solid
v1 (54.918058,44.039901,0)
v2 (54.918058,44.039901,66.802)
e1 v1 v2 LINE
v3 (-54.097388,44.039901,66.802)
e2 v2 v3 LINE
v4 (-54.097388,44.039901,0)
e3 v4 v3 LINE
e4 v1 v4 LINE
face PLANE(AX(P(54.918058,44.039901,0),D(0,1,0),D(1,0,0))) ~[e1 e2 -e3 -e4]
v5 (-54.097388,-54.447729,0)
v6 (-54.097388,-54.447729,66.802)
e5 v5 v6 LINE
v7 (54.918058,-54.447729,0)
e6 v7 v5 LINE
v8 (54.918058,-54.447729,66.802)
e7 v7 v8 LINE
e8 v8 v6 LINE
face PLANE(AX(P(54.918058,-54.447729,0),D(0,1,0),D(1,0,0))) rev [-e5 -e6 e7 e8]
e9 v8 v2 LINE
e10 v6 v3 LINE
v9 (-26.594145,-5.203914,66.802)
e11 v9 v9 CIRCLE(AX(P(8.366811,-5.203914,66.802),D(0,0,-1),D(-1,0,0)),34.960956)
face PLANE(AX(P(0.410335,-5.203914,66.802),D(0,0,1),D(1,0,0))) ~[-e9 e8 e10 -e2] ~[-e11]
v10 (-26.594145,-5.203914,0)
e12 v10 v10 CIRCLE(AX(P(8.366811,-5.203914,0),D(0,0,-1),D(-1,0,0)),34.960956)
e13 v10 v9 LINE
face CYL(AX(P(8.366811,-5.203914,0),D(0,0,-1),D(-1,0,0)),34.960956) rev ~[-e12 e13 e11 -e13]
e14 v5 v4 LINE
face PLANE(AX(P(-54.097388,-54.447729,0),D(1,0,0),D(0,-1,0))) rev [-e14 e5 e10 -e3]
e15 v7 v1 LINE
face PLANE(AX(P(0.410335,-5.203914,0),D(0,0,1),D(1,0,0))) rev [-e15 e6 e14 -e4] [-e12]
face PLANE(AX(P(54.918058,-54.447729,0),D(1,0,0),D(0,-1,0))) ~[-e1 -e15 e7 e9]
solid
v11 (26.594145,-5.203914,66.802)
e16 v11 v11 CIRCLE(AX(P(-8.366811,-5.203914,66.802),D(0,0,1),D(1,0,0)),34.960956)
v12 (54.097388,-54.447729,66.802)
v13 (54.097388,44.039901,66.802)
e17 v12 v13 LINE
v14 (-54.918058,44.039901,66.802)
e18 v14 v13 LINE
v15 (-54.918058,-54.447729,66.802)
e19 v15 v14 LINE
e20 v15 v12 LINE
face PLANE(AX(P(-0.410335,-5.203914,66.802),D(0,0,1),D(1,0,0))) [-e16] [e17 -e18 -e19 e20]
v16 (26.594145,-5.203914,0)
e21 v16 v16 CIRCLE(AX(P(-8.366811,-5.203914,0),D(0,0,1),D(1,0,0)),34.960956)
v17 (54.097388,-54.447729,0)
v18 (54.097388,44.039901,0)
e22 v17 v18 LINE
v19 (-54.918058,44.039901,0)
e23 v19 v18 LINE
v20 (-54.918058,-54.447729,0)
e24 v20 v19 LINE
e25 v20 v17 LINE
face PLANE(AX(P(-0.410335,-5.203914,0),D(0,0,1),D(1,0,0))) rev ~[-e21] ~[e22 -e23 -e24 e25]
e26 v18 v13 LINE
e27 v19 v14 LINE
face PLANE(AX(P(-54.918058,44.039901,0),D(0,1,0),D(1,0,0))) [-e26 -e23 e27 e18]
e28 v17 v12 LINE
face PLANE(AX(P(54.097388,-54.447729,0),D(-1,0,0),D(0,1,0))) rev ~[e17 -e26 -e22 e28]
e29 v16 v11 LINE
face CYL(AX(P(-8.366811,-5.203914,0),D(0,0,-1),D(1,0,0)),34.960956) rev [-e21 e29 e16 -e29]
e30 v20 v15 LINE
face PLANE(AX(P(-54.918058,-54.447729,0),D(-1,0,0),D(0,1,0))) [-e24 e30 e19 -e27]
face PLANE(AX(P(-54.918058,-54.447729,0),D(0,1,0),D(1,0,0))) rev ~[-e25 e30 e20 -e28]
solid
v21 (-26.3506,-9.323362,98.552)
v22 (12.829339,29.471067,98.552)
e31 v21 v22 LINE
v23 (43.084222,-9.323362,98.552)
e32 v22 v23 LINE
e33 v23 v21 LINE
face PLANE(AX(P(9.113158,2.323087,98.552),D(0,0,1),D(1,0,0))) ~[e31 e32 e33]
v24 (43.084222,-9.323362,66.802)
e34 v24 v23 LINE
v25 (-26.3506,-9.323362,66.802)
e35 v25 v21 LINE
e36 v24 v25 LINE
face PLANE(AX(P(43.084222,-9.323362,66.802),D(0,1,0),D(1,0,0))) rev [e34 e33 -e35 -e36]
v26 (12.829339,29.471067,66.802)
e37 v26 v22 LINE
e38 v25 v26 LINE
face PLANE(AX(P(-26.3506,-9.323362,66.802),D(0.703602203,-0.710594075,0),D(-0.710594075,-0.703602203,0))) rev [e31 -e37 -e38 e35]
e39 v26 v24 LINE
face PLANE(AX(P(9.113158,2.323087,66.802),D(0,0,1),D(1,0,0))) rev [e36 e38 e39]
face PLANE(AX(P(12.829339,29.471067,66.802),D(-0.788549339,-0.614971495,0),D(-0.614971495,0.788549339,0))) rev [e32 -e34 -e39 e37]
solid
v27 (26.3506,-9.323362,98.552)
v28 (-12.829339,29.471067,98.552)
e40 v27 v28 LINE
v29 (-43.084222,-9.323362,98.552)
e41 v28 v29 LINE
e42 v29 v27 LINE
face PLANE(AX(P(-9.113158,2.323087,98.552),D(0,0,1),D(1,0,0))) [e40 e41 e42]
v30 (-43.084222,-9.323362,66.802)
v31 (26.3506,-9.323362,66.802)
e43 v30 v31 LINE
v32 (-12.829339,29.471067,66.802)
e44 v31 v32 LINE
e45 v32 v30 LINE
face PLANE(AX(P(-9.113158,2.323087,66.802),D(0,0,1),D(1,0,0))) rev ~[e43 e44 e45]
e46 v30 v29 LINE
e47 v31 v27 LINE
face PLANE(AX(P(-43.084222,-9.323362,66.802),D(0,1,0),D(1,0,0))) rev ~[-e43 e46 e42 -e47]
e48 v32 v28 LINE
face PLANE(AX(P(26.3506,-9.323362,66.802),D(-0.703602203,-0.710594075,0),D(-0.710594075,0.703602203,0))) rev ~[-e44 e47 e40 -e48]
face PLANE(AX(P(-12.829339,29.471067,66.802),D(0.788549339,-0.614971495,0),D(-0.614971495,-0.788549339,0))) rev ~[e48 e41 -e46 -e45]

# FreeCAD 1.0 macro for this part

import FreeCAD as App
import Part
import Sketcher
Q = App.Units.Quantity

doc = App.newDocument("Part")
body = doc.addObject("PartDesign::Body", "Body")

# Sketch on XY plane
sketch1 = body.newObject("Sketcher::SketchObject", "Sketch")
sketch1.AttachmentSupport = (doc.getObject("XY_Plane"), [""])
sketch1.MapMode = "FlatFace"
sketch1.addGeometry([
    Part.LineSegment(App.Vector(-55, 44, 0), App.Vector(-55, -54, 0)),  # 0
    Part.LineSegment(App.Vector(-55, -54, 0), App.Vector(54, -54, 0)),  # 1
    Part.LineSegment(App.Vector(54, -54, 0), App.Vector(54, 44, 0)),  # 2
    Part.LineSegment(App.Vector(54, 44, 0), App.Vector(-55, 44, 0)),  # 3
    Part.Circle(App.Vector(-8, -5, 0), App.Vector(0, 0, 1), 35),  # 4
], False)
sketch1.addConstraint([
    Sketcher.Constraint("Coincident", 0, 2, 1, 1),
    Sketcher.Constraint("Coincident", 1, 2, 2, 1),
    Sketcher.Constraint("Coincident", 2, 2, 3, 1),
    Sketcher.Constraint("Coincident", 3, 2, 0, 1),
    Sketcher.Constraint("Vertical", 0),
    Sketcher.Constraint("Horizontal", 1),
    Sketcher.Constraint("Vertical", 2),
    Sketcher.Constraint("Horizontal", 3),
    Sketcher.Constraint("Diameter", 4, 69.921912),
    Sketcher.Constraint("DistanceY", 0, 2, 0, 1, 98.48763),
    Sketcher.Constraint("DistanceY", -1, 1, 2, 2, 44.039901),
    Sketcher.Constraint("DistanceX", 4, 3, 1, 2, 62.464199),
    Sketcher.Constraint("DistanceX", 1, 1, 1, 2, 109.015446),
    Sketcher.Constraint("DistanceX", 4, 3, -1, 1, 8.366811),
    Sketcher.Constraint("DistanceY", 4, 3, -1, 1, 5.203914),
])
pad1 = body.newObject("PartDesign::Pad", "Pad")
pad1.Profile = sketch1
pad1.Length = Q("2.63 in")
body2 = doc.addObject("PartDesign::Body", "Body001")

# Sketch on XY plane
sketch2 = body2.newObject("Sketcher::SketchObject", "Sketch001")
sketch2.AttachmentSupport = (doc.getObject("XY_Plane001"), [""])
sketch2.MapMode = "FlatFace"
sketch2.AttachmentOffset = App.Placement(App.Vector(0, 0, 2.63 * 25.4), App.Rotation())
sketch2.addGeometry([
    Part.LineSegment(App.Vector(-13, 29, 0), App.Vector(-43, -9, 0)),
    Part.LineSegment(App.Vector(-43, -9, 0), App.Vector(26, -9, 0)),
    Part.LineSegment(App.Vector(26, -9, 0), App.Vector(-13, 29, 0)),
], False)
sketch2.addConstraint([
    Sketcher.Constraint("Coincident", 0, 2, 1, 1),
    Sketcher.Constraint("Coincident", 1, 2, 2, 1),
    Sketcher.Constraint("Coincident", 2, 2, 0, 1),
    Sketcher.Constraint("Horizontal", 1),
    Sketcher.Constraint("DistanceX", 1, 1, 1, 2, 69.434822),
    Sketcher.Constraint("DistanceX", -1, 1, 1, 2, 26.3506),
    Sketcher.Constraint("Distance", 0, 49.197212),
    Sketcher.Constraint("Distance", 2, 55.136878),
    Sketcher.Constraint("DistanceY", 0, 2, -1, 1, 9.323362),
])
pad2 = body2.newObject("PartDesign::Pad", "Pad001")
pad2.Profile = sketch2
pad2.Length = Q("1.25 in")
body3 = doc.addObject("PartDesign::Body", "Body002")
doc.recompute()

mirroring = doc.addObject("Part::Mirroring", "Mirroring")
mirroring.Source = body2
mirroring.Base = App.Vector(0, 0, 0)
mirroring.Normal = App.Vector(1, 0, 0)
body3.BaseFeature = mirroring
doc.recompute()
body4 = doc.addObject("PartDesign::Body", "Body003")
doc.recompute()

mirroring2 = doc.addObject("Part::Mirroring", "Mirroring001")
mirroring2.Source = body
mirroring2.Base = App.Vector(0, 0, 0)
mirroring2.Normal = App.Vector(1, 0, 0)
body4.BaseFeature = mirroring2
doc.recompute()
mirroring.Visibility = False
mirroring2.Visibility = False

doc.recompute()
